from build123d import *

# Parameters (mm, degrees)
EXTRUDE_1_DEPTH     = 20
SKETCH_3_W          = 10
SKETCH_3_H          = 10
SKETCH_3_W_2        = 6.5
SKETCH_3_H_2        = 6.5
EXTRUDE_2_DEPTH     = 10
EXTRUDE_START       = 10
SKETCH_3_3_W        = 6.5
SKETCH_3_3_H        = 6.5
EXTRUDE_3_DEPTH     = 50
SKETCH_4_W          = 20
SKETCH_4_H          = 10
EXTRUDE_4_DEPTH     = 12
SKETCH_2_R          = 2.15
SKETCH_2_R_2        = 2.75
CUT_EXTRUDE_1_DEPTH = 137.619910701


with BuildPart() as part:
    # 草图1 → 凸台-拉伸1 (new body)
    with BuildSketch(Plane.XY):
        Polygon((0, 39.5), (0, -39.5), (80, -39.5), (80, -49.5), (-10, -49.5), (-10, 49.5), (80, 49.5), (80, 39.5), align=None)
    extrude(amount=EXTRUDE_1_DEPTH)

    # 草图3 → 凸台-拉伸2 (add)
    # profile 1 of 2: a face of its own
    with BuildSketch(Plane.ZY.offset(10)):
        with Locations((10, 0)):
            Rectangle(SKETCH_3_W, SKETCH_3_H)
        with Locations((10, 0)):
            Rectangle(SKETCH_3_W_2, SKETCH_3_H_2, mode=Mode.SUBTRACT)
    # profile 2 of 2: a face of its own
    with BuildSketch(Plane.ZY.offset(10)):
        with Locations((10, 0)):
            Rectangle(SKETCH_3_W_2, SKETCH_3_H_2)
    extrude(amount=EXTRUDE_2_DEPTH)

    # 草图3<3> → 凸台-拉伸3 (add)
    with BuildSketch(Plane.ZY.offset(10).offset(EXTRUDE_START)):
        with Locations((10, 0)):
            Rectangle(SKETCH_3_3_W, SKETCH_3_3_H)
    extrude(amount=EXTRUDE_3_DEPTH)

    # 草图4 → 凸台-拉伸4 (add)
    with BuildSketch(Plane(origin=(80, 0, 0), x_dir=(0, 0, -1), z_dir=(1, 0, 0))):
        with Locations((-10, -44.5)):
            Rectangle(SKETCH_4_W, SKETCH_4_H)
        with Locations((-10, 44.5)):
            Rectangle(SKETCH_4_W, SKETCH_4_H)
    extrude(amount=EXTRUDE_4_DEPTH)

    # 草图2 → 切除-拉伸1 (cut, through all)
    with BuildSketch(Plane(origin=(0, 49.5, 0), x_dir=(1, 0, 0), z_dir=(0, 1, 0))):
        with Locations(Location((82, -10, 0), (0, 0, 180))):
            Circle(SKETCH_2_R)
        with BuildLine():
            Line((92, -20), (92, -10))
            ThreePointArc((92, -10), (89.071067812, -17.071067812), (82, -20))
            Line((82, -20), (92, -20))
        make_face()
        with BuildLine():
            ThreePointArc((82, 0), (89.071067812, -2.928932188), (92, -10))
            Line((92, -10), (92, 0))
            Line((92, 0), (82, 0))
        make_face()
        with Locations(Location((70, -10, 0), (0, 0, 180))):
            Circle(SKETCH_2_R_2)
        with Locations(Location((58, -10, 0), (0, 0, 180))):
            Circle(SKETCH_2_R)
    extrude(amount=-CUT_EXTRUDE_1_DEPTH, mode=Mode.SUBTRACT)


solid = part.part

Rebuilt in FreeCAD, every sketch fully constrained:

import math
import FreeCAD as App
import Part
import Sketcher

V = App.Vector
Q = App.Units.Quantity


def add_polygon(sketch, points):
    """Adds a closed chain of lines whose ends are joined by coincident constraints."""
    first, n = sketch.GeometryCount, len(points)
    for a, b in zip(points, points[1:] + points[:1]):
        sketch.addGeometry(Part.LineSegment(App.Vector(*a, 0), App.Vector(*b, 0)), False)
    for i in range(n):
        sketch.addConstraint(Sketcher.Constraint("Coincident", first + i, 2, first + (i + 1) % n, 1))

doc = App.newDocument("Part")
body = doc.addObject("PartDesign::Body", "Body")

# Sketch on XY plane
sketch1 = body.newObject("Sketcher::SketchObject", "Sketch")
sketch1.AttachmentSupport = (doc.getObject("XY_Plane"), [""])
sketch1.MapMode = "FlatFace"
add_polygon(sketch1, [(0, -39.5), (0, 39.5), (80, 39.5), (80, 49.5), (-10, 49.5), (-10, -49.5), (80, -49.5), (80, -39.5)])  # lines 0-7
sketch1.addConstraint([
    Sketcher.Constraint("Vertical", 0),
    Sketcher.Constraint("Horizontal", 1),
    Sketcher.Constraint("Vertical", 2),
    Sketcher.Constraint("Horizontal", 3),
    Sketcher.Constraint("Vertical", 4),
    Sketcher.Constraint("Horizontal", 5),
    Sketcher.Constraint("Vertical", 6),
    Sketcher.Constraint("Horizontal", 7),
    Sketcher.Constraint("Symmetric", 0, 2, 7, 2, -1, 1),
    Sketcher.Constraint("Symmetric", 2, 2, 5, 2, -1),
    Sketcher.Constraint("DistanceX", 1, 1, 1, 2, Q("80 mm")),
    Sketcher.Constraint("DistanceX", 3, 2, 3, 1, Q("90 mm")),
    Sketcher.Constraint("DistanceY", 0, 1, 0, 2, Q("79 mm")),
    Sketcher.Constraint("DistanceY", 2, 1, 2, 2, Q("10 mm")),
])
pad1 = body.newObject("PartDesign::Pad", "Pad")
pad1.Profile = sketch1
pad1.Length = 20

# Sketch on YZ plane
sketch2 = body.newObject("Sketcher::SketchObject", "Sketch001")
sketch2.AttachmentSupport = (doc.getObject("YZ_Plane"), [""])
sketch2.MapMode = "FlatFace"
sketch2.AttachmentOffset = App.Placement(V(0, 0, -10), App.Rotation())
add_polygon(sketch2, [(5, 5), (-5, 5), (-5, 15), (5, 15)])  # lines 0-3
sketch2.addConstraint([
    Sketcher.Constraint("Horizontal", 0),
    Sketcher.Constraint("Vertical", 1),
    Sketcher.Constraint("Horizontal", 2),
    Sketcher.Constraint("Vertical", 3),
    Sketcher.Constraint("Equal", 2, 1),
    Sketcher.Constraint("DistanceX", 0, 2, 0, 1, Q("10 mm")),
    Sketcher.Constraint("DistanceX", 0, 2, -1, 1, Q("5 mm")),
    Sketcher.Constraint("DistanceY", -1, 1, 0, 2, Q("5 mm")),
])
pad2 = body.newObject("PartDesign::Pad", "Pad001")
pad2.Profile = sketch2
pad2.Length = 10
pad2.Reversed = True

# Sketch on YZ plane
sketch3 = body.newObject("Sketcher::SketchObject", "Sketch002")
sketch3.AttachmentSupport = (doc.getObject("YZ_Plane"), [""])
sketch3.MapMode = "FlatFace"
sketch3.AttachmentOffset = App.Placement(V(0, 0, -20), App.Rotation())
add_polygon(sketch3, [(3.25, 6.75), (-3.25, 6.75), (-3.25, 13.25), (3.25, 13.25)])  # lines 0-3
sketch3.addConstraint([
    Sketcher.Constraint("Horizontal", 0),
    Sketcher.Constraint("Vertical", 1),
    Sketcher.Constraint("Horizontal", 2),
    Sketcher.Constraint("Vertical", 3),
    Sketcher.Constraint("Equal", 2, 1),
    Sketcher.Constraint("DistanceX", 0, 2, 0, 1, Q("6.5 mm")),
    Sketcher.Constraint("DistanceX", 0, 2, -1, 1, Q("3.25 mm")),
    Sketcher.Constraint("DistanceY", -1, 1, 0, 2, Q("6.75 mm")),
])
pad3 = body.newObject("PartDesign::Pad", "Pad002")
pad3.Profile = sketch3
pad3.Length = 50
pad3.Reversed = True

# Sketch on YZ plane
sketch4 = body.newObject("Sketcher::SketchObject", "Sketch003")
sketch4.AttachmentSupport = (doc.getObject("YZ_Plane"), [""])
sketch4.MapMode = "FlatFace"
sketch4.AttachmentOffset = App.Placement(V(0, 0, 80), App.Rotation())
add_polygon(sketch4, [(-39.5, 20), (-49.5, 20), (-49.5, 0), (-39.5, 0)])  # lines 0-3
add_polygon(sketch4, [(49.5, 20), (39.5, 20), (39.5, 0), (49.5, 0)])  # lines 4-7
sketch4.addConstraint([
    Sketcher.Constraint("Horizontal", 0),
    Sketcher.Constraint("Vertical", 1),
    Sketcher.Constraint("Horizontal", 2),
    Sketcher.Constraint("Vertical", 3),
    Sketcher.Constraint("Horizontal", 4),
    Sketcher.Constraint("Vertical", 5),
    Sketcher.Constraint("Horizontal", 6),
    Sketcher.Constraint("Vertical", 7),
    Sketcher.Constraint("Symmetric", 2, 2, 5, 2, -1, 1),
    Sketcher.Constraint("Symmetric", 1, 2, 6, 2, -2),
    Sketcher.Constraint("Horizontal", 3, 2, 4, 2),
    Sketcher.Constraint("DistanceX", 0, 2, 0, 1, Q("10 mm")),
    Sketcher.Constraint("DistanceY", 1, 2, 1, 1, Q("20 mm")),
    Sketcher.Constraint("DistanceX", 3, 2, 4, 2, Q("79 mm")),
])
pad4 = body.newObject("PartDesign::Pad", "Pad003")
pad4.Profile = sketch4
pad4.Length = 12

# Sketch on XZ plane
sketch5 = body.newObject("Sketcher::SketchObject", "Sketch004")
sketch5.AttachmentSupport = (doc.getObject("XZ_Plane"), [""])
sketch5.MapMode = "FlatFace"
sketch5.AttachmentOffset = App.Placement(V(0, 0, -49.5), App.Rotation())
sketch5.addGeometry([
    Part.Circle(V(82, 10, 0), V(0, 0, 1), 2.15),  # 0
    Part.LineSegment(V(92, 20, 0), V(92, 10, 0)),  # 1
    Part.ArcOfCircle(Part.Circle(V(82, 10, 0), V(0, 0, 1), 10), math.radians(0), math.radians(90)),  # 2
    Part.LineSegment(V(82, 20, 0), V(92, 20, 0)),  # 3
    Part.ArcOfCircle(Part.Circle(V(82, 10, 0), V(0, 0, 1), 10), math.radians(-90), math.radians(0)),  # 4
    Part.LineSegment(V(92, 10, 0), V(92, 0, 0)),  # 5
    Part.LineSegment(V(92, 0, 0), V(82, 0, 0)),  # 6
    Part.Circle(V(70, 10, 0), V(0, 0, 1), 2.75),  # 7
    Part.Circle(V(58, 10, 0), V(0, 0, 1), 2.15),  # 8
], False)
sketch5.addConstraint([
    Sketcher.Constraint("Tangent", 1, 2, 2, 1),
    Sketcher.Constraint("Tangent", 2, 2, 3, 1),
    Sketcher.Constraint("Coincident", 3, 2, 1, 1),
    Sketcher.Constraint("Tangent", 4, 2, 5, 1),
    Sketcher.Constraint("Coincident", 5, 2, 6, 1),
    Sketcher.Constraint("Tangent", 6, 2, 4, 1),
    Sketcher.Constraint("Vertical", 1),
    Sketcher.Constraint("Horizontal", 3),
    Sketcher.Constraint("Vertical", 5),
    Sketcher.Constraint("Horizontal", 6),
    Sketcher.Constraint("Coincident", 2, 3, 0, 3),
    Sketcher.Constraint("Coincident", 4, 3, 0, 3),
    Sketcher.Constraint("Equal", 2, 4),
    Sketcher.Constraint("Equal", 0, 8),
    Sketcher.Constraint("PointOnObject", 5, 2, -1),
    Sketcher.Constraint("Horizontal", 4, 3, 7, 3),
    Sketcher.Constraint("Horizontal", 7, 3, 8, 3),
    Sketcher.Constraint("Radius", 2, Q("10 mm")),
    Sketcher.Constraint("Diameter", 0, Q("4.3 mm")),
    Sketcher.Constraint("Diameter", 7, Q("5.5 mm")),
    Sketcher.Constraint("DistanceX", -1, 1, 0, 3, Q("82 mm")),
    Sketcher.Constraint("DistanceX", -1, 1, 7, 3, Q("70 mm")),
    Sketcher.Constraint("DistanceX", -1, 1, 8, 3, Q("58 mm")),
])
pocket1 = body.newObject("PartDesign::Pocket", "Pocket")
pocket1.Profile = sketch5
pocket1.Type = "ThroughAll"
pocket1.Reversed = True

doc.recompute()
